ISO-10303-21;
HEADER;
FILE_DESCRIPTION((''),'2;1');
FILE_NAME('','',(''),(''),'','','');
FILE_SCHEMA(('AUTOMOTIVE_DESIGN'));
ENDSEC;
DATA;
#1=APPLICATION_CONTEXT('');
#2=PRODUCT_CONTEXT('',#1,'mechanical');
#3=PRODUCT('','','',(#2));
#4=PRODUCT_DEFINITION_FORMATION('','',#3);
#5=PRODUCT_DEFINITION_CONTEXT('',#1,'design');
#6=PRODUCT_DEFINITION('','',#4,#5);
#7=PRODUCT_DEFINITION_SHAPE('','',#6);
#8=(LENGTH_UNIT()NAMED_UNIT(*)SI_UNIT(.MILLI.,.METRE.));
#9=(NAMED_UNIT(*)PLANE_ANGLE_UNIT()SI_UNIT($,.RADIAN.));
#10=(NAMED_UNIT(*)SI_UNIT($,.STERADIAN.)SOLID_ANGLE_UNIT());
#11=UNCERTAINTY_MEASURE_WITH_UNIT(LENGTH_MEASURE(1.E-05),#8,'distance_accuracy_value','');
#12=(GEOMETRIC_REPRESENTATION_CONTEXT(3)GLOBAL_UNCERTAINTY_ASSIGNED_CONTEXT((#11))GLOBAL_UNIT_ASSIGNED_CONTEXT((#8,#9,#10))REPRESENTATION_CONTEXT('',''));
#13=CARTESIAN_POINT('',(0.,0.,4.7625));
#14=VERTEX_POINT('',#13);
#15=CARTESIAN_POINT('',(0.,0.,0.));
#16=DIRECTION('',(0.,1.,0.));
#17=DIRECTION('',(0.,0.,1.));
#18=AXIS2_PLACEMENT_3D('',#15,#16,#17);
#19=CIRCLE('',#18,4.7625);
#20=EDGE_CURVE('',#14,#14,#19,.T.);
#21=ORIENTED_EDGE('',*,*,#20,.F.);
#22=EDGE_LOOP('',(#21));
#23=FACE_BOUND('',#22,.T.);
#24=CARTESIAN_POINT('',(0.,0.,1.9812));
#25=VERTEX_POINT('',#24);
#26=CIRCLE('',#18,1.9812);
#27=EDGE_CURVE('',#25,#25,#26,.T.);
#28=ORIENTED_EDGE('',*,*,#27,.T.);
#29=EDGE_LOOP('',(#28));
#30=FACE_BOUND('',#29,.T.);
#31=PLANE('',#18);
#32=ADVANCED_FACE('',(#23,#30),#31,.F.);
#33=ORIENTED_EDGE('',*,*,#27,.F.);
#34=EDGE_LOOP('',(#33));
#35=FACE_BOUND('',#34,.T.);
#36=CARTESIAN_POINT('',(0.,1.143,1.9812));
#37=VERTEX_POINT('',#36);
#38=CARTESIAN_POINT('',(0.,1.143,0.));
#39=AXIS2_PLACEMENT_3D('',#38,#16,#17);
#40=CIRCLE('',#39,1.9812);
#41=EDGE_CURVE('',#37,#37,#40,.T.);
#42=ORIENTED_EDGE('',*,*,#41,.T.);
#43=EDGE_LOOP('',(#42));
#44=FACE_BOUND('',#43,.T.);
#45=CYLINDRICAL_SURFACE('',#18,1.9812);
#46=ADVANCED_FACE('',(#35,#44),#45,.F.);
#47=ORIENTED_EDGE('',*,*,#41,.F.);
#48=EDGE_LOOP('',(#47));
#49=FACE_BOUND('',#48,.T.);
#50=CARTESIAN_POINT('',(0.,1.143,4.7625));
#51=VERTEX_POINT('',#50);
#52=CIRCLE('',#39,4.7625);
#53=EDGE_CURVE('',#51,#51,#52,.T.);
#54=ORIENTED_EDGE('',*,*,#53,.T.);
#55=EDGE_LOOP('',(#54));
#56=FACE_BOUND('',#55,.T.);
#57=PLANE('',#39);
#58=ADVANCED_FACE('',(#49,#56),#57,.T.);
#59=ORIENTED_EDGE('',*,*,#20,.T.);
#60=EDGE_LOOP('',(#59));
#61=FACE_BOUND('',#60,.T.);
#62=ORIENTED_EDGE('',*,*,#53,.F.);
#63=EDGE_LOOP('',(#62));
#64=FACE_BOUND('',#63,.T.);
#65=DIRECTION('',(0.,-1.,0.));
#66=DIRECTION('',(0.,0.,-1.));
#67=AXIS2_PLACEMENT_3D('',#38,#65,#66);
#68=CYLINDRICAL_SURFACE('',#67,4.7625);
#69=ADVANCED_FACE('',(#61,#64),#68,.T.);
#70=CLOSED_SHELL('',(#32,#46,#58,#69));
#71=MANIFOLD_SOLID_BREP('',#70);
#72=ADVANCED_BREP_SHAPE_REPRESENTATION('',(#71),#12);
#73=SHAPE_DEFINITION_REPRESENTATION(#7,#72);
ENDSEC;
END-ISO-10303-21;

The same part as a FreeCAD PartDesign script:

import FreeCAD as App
import Part
import Sketcher
Q = App.Units.Quantity

doc = App.newDocument("Part")
body = doc.addObject("PartDesign::Body", "Body")

# Sketch on XZ plane
sketch1 = body.newObject("Sketcher::SketchObject", "Sketch")
sketch1.AttachmentSupport = (doc.getObject("XZ_Plane"), [""])
sketch1.MapMode = "FlatFace"
sketch1.addGeometry(Part.Circle(App.Vector(0, 0, 0), App.Vector(0, 0, 1), 4.8), False)
sketch1.addConstraint([
    Sketcher.Constraint("Coincident", 0, 3, -1, 1),
    Sketcher.Constraint("Diameter", 0, Q("0.375 in")),
])
pad1 = body.newObject("PartDesign::Pad", "Pad")
pad1.Profile = sketch1
pad1.Length = Q("0.045 in")
pad1.Reversed = True

# Sketch on XZ plane
sketch2 = body.newObject("Sketcher::SketchObject", "Sketch001")
sketch2.AttachmentSupport = (doc.getObject("XZ_Plane"), [""])
sketch2.MapMode = "FlatFace"
sketch2.AttachmentOffset = App.Placement(App.Vector(0, 0, -0.045 * 25.4), App.Rotation())
sketch2.addGeometry(Part.Circle(App.Vector(0, 0, 0), App.Vector(0, 0, 1), 2), False)
sketch2.addConstraint([
    Sketcher.Constraint("Coincident", 0, 3, -1, 1),
    Sketcher.Constraint("Diameter", 0, Q("0.156 in")),
])
pocket1 = body.newObject("PartDesign::Pocket", "Pocket")
pocket1.Profile = sketch2
pocket1.Type = "ThroughAll"
pocket1.Reversed = True

doc.recompute()
